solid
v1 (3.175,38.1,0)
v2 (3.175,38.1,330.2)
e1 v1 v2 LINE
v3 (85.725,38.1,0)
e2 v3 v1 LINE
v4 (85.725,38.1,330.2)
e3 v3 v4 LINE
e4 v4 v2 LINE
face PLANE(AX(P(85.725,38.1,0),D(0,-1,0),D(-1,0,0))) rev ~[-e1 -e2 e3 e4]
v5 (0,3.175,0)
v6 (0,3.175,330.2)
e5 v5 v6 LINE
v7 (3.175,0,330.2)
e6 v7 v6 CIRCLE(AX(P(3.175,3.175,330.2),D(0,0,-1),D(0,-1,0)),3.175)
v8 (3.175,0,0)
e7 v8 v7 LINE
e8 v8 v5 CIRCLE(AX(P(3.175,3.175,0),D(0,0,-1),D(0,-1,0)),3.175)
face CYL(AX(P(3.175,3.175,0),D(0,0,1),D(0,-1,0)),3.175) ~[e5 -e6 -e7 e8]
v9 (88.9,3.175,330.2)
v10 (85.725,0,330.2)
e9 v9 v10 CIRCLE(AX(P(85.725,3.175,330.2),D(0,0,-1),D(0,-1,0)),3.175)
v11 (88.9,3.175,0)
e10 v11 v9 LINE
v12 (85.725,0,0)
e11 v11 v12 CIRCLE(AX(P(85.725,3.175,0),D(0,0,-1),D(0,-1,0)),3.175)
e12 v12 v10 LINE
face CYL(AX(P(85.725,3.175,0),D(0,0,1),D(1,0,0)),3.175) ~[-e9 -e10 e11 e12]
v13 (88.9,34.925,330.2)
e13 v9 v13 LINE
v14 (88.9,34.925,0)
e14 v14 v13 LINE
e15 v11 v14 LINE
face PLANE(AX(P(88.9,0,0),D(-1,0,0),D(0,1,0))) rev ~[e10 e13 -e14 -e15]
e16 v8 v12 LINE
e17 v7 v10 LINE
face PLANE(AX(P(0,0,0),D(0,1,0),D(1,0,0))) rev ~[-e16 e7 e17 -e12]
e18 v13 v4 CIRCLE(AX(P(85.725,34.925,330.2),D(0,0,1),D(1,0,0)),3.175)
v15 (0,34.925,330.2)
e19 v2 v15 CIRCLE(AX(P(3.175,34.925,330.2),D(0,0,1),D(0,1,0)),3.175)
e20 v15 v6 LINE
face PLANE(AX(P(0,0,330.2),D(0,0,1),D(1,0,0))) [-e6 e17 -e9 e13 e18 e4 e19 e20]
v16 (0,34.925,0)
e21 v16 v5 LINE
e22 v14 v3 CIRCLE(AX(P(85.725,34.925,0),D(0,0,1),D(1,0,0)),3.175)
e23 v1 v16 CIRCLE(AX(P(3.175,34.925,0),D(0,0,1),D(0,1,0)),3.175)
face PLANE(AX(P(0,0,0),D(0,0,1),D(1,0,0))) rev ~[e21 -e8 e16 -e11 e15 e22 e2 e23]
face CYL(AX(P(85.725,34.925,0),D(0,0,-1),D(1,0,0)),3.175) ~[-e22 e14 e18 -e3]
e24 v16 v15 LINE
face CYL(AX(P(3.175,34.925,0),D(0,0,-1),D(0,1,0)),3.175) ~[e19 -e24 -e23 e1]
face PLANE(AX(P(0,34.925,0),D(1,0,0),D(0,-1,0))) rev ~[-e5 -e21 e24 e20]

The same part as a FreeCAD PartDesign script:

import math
import FreeCAD as App
import Part
import Sketcher

V = App.Vector
Q = App.Units.Quantity


def edges_at(feature, points):
    """Names of the edges that pass closest to the given points."""
    edges = feature.Shape.Edges
    near = lambda p: min(range(len(edges)), key=lambda i: edges[i].distToShape(Part.Vertex(*p))[0])
    return sorted({f"Edge{near(p) + 1}" for p in points})

doc = App.newDocument("Part")
body = doc.addObject("PartDesign::Body", "Body")

# Sketch on XY plane
sketch1 = body.newObject("Sketcher::SketchObject", "Sketch")
sketch1.AttachmentSupport = (doc.getObject("XY_Plane"), [""])
sketch1.MapMode = "FlatFace"
sketch1.addGeometry(Part.LineSegment(V(0, 34.9, 0), V(0, 0, 0)), False)
sketch1.addGeometry(Part.LineSegment(V(0, 0, 0), V(88.9, 0, 0)), False)
sketch1.addGeometry(Part.LineSegment(V(88.9, 0, 0), V(88.9, 34.9, 0)), False)
sketch1.addGeometry(Part.ArcOfCircle(Part.Circle(V(85.7, 34.9, 0), V(0, 0, 1), 3.2), math.radians(0), math.radians(90)), False)
sketch1.addGeometry(Part.LineSegment(V(85.7, 38.1, 0), V(3.2, 38.1, 0)), False)
sketch1.addGeometry(Part.ArcOfCircle(Part.Circle(V(3.2, 34.9, 0), V(0, 0, 1), 3.2), math.radians(90), math.radians(180)), False)
sketch1.addConstraint(Sketcher.Constraint("Coincident", 0, 2, 1, 1))
sketch1.addConstraint(Sketcher.Constraint("Coincident", 1, 2, 2, 1))
sketch1.addConstraint(Sketcher.Constraint("Tangent", 2, 2, 3, 1))
sketch1.addConstraint(Sketcher.Constraint("Tangent", 3, 2, 4, 1))
sketch1.addConstraint(Sketcher.Constraint("Tangent", 4, 2, 5, 1))
sketch1.addConstraint(Sketcher.Constraint("Tangent", 5, 2, 0, 1))
sketch1.addConstraint(Sketcher.Constraint("Vertical", 0))
sketch1.addConstraint(Sketcher.Constraint("Horizontal", 1))
sketch1.addConstraint(Sketcher.Constraint("Vertical", 2))
sketch1.addConstraint(Sketcher.Constraint("Horizontal", 4))
sketch1.addConstraint(Sketcher.Constraint("Coincident", 0, 2, -1, 1))
sketch1.addConstraint(Sketcher.Constraint("Equal", 3, 5))
sketch1.addConstraint(Sketcher.Constraint("DistanceX", 1, 1, 1, 2, Q("3.5 in")))
sketch1.addConstraint(Sketcher.Constraint("Radius", 3, Q("0.125 in")))
sketch1.addConstraint(Sketcher.Constraint("DistanceY", -1, 1, 3, 2, Q("1.5 in")))
pad1 = body.newObject("PartDesign::Pad", "Pad")
pad1.Profile = sketch1
pad1.Length = Q("13 in")
doc.recompute()

fillet = body.newObject("PartDesign::Fillet", "Fillet")
fillet.Base = (pad1, edges_at(pad1, [(88.9, 0, 165.1)]))
fillet.Radius = Q("0.125 in")
doc.recompute()

fillet2 = body.newObject("PartDesign::Fillet", "Fillet001")
fillet2.Base = (fillet, edges_at(fillet, [(0, 0, 165.1)]))
fillet2.Radius = Q("0.125 in")

doc.recompute()
